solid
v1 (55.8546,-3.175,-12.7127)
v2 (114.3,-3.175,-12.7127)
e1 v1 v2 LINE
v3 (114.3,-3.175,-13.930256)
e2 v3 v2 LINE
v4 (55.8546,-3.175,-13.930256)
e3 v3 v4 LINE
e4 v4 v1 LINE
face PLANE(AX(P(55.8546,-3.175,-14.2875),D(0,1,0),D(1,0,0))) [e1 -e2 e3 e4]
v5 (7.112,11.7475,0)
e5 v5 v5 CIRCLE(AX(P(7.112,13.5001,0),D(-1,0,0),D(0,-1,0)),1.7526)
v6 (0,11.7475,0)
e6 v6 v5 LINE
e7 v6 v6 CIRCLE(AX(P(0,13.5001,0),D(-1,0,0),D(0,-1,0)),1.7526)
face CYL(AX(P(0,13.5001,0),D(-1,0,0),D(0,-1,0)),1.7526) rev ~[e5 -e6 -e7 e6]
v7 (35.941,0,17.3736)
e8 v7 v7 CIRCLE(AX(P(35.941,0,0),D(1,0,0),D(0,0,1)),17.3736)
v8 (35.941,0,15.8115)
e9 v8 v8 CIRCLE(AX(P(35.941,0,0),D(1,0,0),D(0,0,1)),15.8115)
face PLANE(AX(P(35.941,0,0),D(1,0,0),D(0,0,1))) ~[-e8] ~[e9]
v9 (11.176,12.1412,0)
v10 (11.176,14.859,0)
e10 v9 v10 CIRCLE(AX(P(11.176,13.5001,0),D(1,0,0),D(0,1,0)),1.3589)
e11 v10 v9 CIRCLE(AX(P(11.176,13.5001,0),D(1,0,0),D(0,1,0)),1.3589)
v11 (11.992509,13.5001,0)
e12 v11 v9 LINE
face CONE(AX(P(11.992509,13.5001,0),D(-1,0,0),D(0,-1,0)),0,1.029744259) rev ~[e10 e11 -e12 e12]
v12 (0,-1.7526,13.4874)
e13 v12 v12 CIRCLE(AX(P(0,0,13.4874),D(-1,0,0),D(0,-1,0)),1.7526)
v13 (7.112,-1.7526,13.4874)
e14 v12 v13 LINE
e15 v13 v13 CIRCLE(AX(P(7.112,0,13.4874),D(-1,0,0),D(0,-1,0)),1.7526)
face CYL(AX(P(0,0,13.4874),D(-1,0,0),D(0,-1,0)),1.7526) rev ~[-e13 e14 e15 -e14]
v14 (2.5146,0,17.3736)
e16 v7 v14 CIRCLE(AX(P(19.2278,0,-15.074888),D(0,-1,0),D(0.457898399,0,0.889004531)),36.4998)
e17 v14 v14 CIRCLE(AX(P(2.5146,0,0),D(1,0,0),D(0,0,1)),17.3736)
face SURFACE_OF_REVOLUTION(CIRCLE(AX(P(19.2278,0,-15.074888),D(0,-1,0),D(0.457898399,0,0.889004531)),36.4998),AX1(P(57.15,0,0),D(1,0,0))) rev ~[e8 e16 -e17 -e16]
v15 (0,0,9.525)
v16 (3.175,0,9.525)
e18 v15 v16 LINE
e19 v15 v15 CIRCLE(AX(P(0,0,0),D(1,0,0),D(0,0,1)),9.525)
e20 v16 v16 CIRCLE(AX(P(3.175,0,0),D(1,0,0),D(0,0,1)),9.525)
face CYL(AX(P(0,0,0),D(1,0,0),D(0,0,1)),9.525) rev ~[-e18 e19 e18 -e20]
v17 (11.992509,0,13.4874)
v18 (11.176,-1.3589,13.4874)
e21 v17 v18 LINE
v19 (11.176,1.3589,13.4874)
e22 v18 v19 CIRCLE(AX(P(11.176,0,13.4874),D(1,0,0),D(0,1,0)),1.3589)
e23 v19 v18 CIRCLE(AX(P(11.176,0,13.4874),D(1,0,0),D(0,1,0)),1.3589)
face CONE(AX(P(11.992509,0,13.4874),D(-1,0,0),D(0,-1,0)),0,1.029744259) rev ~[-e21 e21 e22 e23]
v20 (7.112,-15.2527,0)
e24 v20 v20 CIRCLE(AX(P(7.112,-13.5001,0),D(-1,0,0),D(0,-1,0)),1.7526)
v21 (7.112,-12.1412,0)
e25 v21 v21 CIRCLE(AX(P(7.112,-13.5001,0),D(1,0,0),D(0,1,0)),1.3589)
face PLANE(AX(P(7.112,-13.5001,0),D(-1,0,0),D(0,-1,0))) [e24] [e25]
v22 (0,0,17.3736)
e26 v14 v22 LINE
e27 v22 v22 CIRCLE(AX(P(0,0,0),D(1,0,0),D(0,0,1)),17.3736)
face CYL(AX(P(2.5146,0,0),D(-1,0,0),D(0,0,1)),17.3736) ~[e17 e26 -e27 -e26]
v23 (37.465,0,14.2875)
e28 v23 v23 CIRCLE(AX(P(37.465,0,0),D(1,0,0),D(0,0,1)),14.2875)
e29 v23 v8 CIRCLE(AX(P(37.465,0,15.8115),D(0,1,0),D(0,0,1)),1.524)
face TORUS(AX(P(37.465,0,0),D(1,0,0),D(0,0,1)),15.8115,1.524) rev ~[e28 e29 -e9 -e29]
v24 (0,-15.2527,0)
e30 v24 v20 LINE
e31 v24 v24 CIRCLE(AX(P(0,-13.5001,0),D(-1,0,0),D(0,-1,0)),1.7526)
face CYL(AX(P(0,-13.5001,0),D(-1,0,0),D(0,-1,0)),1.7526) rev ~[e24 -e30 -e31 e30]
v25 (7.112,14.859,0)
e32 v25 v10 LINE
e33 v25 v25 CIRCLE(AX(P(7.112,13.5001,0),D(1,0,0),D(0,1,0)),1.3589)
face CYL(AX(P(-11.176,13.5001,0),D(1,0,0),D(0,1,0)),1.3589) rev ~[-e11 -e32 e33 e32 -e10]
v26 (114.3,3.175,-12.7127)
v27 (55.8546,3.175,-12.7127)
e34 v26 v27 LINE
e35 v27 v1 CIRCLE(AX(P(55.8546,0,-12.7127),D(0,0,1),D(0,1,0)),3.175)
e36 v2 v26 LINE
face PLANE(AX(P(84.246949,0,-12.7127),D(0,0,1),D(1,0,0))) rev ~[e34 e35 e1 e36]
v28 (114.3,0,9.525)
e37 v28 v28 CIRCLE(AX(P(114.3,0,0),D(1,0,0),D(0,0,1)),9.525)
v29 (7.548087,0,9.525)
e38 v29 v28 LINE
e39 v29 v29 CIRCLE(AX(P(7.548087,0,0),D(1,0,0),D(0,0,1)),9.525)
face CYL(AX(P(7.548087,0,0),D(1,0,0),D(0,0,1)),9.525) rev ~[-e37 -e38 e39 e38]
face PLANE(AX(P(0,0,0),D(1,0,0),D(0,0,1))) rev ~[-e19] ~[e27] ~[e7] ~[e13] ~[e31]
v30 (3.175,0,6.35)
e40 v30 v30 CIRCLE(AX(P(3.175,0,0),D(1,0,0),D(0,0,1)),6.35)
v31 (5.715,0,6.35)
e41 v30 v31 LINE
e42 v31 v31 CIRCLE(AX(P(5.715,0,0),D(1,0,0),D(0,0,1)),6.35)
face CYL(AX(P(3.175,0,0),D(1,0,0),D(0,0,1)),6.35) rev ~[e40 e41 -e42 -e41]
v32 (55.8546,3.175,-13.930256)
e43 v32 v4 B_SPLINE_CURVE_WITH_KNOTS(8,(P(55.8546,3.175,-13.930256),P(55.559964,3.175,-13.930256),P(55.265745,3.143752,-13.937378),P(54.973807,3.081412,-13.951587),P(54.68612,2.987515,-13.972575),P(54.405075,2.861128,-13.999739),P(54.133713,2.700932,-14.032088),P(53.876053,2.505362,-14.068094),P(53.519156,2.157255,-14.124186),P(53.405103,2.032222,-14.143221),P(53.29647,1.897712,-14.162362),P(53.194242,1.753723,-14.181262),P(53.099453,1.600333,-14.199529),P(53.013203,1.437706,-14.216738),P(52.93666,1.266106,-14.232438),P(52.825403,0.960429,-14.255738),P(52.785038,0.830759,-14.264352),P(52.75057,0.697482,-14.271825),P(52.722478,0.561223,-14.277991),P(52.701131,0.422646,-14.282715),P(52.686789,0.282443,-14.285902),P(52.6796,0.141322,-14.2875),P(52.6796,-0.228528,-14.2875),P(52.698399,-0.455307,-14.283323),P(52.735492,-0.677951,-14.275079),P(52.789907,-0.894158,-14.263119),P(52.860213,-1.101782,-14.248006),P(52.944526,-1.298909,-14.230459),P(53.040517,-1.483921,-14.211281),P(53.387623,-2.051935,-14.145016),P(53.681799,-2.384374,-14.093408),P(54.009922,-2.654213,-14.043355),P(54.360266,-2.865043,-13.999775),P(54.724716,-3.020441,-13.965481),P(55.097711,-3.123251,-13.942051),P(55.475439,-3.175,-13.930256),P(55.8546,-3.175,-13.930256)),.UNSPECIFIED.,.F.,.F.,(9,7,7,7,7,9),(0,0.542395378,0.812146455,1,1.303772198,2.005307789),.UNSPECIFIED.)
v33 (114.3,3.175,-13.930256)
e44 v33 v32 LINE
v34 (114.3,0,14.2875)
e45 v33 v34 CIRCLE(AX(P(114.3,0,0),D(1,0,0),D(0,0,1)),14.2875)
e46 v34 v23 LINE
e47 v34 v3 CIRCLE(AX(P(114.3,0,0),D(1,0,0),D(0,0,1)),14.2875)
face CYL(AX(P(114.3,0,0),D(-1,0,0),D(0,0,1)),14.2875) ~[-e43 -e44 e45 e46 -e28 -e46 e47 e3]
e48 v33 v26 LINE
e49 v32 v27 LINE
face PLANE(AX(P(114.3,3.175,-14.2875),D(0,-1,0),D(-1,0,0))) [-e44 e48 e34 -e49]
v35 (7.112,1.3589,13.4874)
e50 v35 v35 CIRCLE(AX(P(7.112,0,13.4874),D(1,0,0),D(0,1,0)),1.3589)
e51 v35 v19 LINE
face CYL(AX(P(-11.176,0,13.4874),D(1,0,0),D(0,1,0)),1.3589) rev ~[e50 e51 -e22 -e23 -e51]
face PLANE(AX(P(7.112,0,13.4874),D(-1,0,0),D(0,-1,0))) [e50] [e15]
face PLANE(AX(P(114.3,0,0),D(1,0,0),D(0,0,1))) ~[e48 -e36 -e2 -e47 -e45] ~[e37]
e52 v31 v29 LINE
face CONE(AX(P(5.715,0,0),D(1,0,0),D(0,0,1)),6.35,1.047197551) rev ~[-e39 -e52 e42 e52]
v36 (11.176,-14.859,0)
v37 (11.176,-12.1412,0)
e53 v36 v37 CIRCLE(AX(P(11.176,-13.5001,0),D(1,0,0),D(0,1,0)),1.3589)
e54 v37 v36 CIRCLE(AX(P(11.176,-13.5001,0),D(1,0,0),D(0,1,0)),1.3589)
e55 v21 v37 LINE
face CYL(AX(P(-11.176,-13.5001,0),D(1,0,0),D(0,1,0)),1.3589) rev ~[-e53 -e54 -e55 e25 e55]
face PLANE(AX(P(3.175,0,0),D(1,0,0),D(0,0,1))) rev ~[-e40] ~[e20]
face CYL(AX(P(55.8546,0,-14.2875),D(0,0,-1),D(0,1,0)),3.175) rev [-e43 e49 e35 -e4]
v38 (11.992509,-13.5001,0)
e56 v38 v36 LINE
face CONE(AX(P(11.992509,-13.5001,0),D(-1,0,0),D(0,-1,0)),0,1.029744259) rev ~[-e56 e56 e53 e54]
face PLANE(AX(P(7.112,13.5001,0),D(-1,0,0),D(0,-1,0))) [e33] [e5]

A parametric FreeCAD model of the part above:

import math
import FreeCAD as App
import Part
import Sketcher
Q = App.Units.Quantity


def edges_at(feature, points):
    """Names of the edges that pass closest to the given points."""
    edges = feature.Shape.Edges
    near = lambda p: min(range(len(edges)), key=lambda i: edges[i].distToShape(Part.Vertex(*p))[0])
    return sorted({f"Edge{near(p) + 1}" for p in points})

doc = App.newDocument("Part")
params = doc.addObject("Spreadsheet::Sheet", "Params")
for row, (alias, value) in enumerate([
    ("sketch1_width", "0.1 in"),
    ("sketch1_radius", "1.437 in"),
    ("sketch1_width2", "0.099 in"),
    ("sketch1_width3", "0.125 in"),
    ("sketch1_width4", "3.085 in"),
    ("revolution_angle", "360 deg"),
    ("sketch2_diameter", "0.107 in"),
    ("hole_diameter", "0.107 in"),
    ("hole_depth", "0.44 in"),
    ("sketch3_diameter", "0.138 in"),
    ("pocket1_length", "0.28 in"),
    ("sketch4_radius", "0.125 in"),
    ("sketch4_width", "2.301 in"),
    ("pocket2_length", "0.062 in"),
    ("fillet_radius", "0.06 in"),
], start=1):
    params.set(f"A{row}", alias)
    params.set(f"B{row}", "=" + value)
    params.setAlias(f"B{row}", alias)

body = doc.addObject("PartDesign::Body", "Body")

# Sketch on XZ plane
sketch1 = body.newObject("Sketcher::SketchObject", "Sketch")
sketch1.AttachmentSupport = (doc.getObject("XZ_Plane"), [""])
sketch1.MapMode = "FlatFace"
sketch1.addGeometry([
    Part.ArcOfCircle(Part.Circle(App.Vector(19.2278, -15.074888, 0), App.Vector(0, 0, 1), 36.4998), math.radians(62.748422), math.radians(117.251578)),  # 0
    Part.LineSegment(App.Vector(2.5146, 17.3736, 0), App.Vector(0, 17.3736, 0)),  # 1
    Part.LineSegment(App.Vector(0, 17.3736, 0), App.Vector(0, 9.525, 0)),  # 2
    Part.LineSegment(App.Vector(0, 9.525, 0), App.Vector(3.175, 9.525, 0)),  # 3
    Part.LineSegment(App.Vector(3.175, 9.525, 0), App.Vector(3.175, 6.35, 0)),  # 4
    Part.LineSegment(App.Vector(3.175, 6.35, 0), App.Vector(5.715, 6.35, 0)),  # 5
    Part.LineSegment(App.Vector(5.715, 6.35, 0), App.Vector(7.548087, 9.525, 0)),  # 6
    Part.LineSegment(App.Vector(7.548087, 9.525, 0), App.Vector(114.3, 9.525, 0)),  # 7
    Part.LineSegment(App.Vector(114.3, 9.525, 0), App.Vector(114.3, 14.2875, 0)),  # 8
    Part.LineSegment(App.Vector(114.3, 14.2875, 0), App.Vector(35.941, 14.2875, 0)),  # 9
    Part.LineSegment(App.Vector(35.941, 14.2875, 0), App.Vector(35.941, 17.3736, 0)),  # 10
], False)
sketch1.addConstraint([
    Sketcher.Constraint("Coincident", 0, 2, 1, 1),
    Sketcher.Constraint("Coincident", 1, 2, 2, 1),
    Sketcher.Constraint("Coincident", 2, 2, 3, 1),
    Sketcher.Constraint("Coincident", 3, 2, 4, 1),
    Sketcher.Constraint("Coincident", 4, 2, 5, 1),
    Sketcher.Constraint("Coincident", 5, 2, 6, 1),
    Sketcher.Constraint("Coincident", 6, 2, 7, 1),
    Sketcher.Constraint("Coincident", 7, 2, 8, 1),
    Sketcher.Constraint("Coincident", 8, 2, 9, 1),
    Sketcher.Constraint("Coincident", 9, 2, 10, 1),
    Sketcher.Constraint("Coincident", 10, 2, 0, 1),
    Sketcher.Constraint("Horizontal", 1),
    Sketcher.Constraint("Vertical", 2),
    Sketcher.Constraint("Horizontal", 3),
    Sketcher.Constraint("Vertical", 4),
    Sketcher.Constraint("Horizontal", 5),
    Sketcher.Constraint("Horizontal", 7),
    Sketcher.Constraint("Vertical", 8),
    Sketcher.Constraint("Horizontal", 9),
    Sketcher.Constraint("Vertical", 10),
    Sketcher.Constraint("PointOnObject", 1, 2, -2),
    Sketcher.Constraint("Horizontal", 3, 2, 6, 2),
    Sketcher.Constraint("Horizontal", 1, 2, 10, 2),
    Sketcher.Constraint("Equal", 3, 4),
    Sketcher.Constraint("DistanceX", 5, 1, 5, 2, Q("0.1 in")),
    Sketcher.Constraint("Angle", 6, Q("60 deg")),
    Sketcher.Constraint("Radius", 0, Q("1.437 in")),
    Sketcher.Constraint("DistanceX", -1, 1, 7, 2, Q("4.5 in")),
    Sketcher.Constraint("DistanceX", 1, 2, 1, 1, Q("0.099 in")),
    Sketcher.Constraint("DistanceX", 3, 1, 3, 2, Q("0.125 in")),
    Sketcher.Constraint("DistanceX", 9, 2, 9, 1, Q("3.085 in")),
    Sketcher.Constraint("DistanceY", 2, 2, 2, 1, Q("0.309 in")),
    Sketcher.Constraint("DistanceY", 8, 1, 8, 2, Q("0.1875 in")),
    Sketcher.Constraint("DistanceY", -1, 1, 4, 2, Q("0.25 in")),
])
sketch1.setExpression("Constraints[24]", "Params.sketch1_width")
sketch1.setExpression("Constraints[26]", "Params.sketch1_radius")
sketch1.setExpression("Constraints[28]", "Params.sketch1_width2")
sketch1.setExpression("Constraints[29]", "Params.sketch1_width3")
sketch1.setExpression("Constraints[30]", "Params.sketch1_width4")
revolution = body.newObject("PartDesign::Revolution", "Revolution")
revolution.Profile = sketch1
revolution.ReferenceAxis = (sketch1, ["H_Axis"])
revolution.setExpression("Angle", "Params.revolution_angle")

# Sketch on YZ plane
sketch2 = body.newObject("Sketcher::SketchObject", "Sketch001")
sketch2.AttachmentSupport = (doc.getObject("YZ_Plane"), [""])
sketch2.MapMode = "FlatFace"
sketch2.addGeometry([
    Part.Circle(App.Vector(13.5001, 0, 0), App.Vector(0, 0, 1), 1.3589),
    Part.Circle(App.Vector(0, 13.4874, 0), App.Vector(0, 0, 1), 1.3589),
    Part.Circle(App.Vector(-13.5001, 0, 0), App.Vector(0, 0, 1), 1.3589),
], False)
sketch2.addConstraint([
    Sketcher.Constraint("Equal", 0, 1),
    Sketcher.Constraint("Equal", 1, 2),
    Sketcher.Constraint("Symmetric", 0, 3, 2, 3, -1, 1),
    Sketcher.Constraint("PointOnObject", 0, 3, -1),
    Sketcher.Constraint("PointOnObject", 1, 3, -2),
    Sketcher.Constraint("Diameter", 0, Q("0.107 in")),
    Sketcher.Constraint("DistanceY", -1, 1, 1, 3, Q("0.531 in")),
    Sketcher.Constraint("DistanceX", 2, 3, 0, 3, Q("1.063 in")),
])
sketch2.setExpression("Constraints[5]", "Params.sketch2_diameter")
doc.recompute()
hole = body.newObject("PartDesign::Hole", "Hole")
hole.Profile = sketch2
hole.ThreadType = "None"
hole.setExpression("Diameter", "Params.hole_diameter")
hole.DepthType = "Dimension"
hole.setExpression("Depth", "Params.hole_depth")
hole.DrillPoint = "Angled"
hole.DrillPointAngle = 118
hole.Reversed = True

# Sketch on YZ plane
sketch3 = body.newObject("Sketcher::SketchObject", "Sketch002")
sketch3.AttachmentSupport = (doc.getObject("YZ_Plane"), [""])
sketch3.MapMode = "FlatFace"
sketch3.addGeometry([
    Part.Circle(App.Vector(13.5001, 0, 0), App.Vector(0, 0, 1), 1.7526),
    Part.Circle(App.Vector(0, 13.4874, 0), App.Vector(0, 0, 1), 1.7526),
    Part.Circle(App.Vector(-13.5001, 0, 0), App.Vector(0, 0, 1), 1.7526),
], False)
sketch3.addConstraint([
    Sketcher.Constraint("Equal", 0, 1),
    Sketcher.Constraint("Equal", 1, 2),
    Sketcher.Constraint("Symmetric", 0, 3, 2, 3, -1, 1),
    Sketcher.Constraint("PointOnObject", 0, 3, -1),
    Sketcher.Constraint("PointOnObject", 1, 3, -2),
    Sketcher.Constraint("Diameter", 0, Q("0.138 in")),
    Sketcher.Constraint("DistanceY", -1, 1, 1, 3, Q("0.531 in")),
    Sketcher.Constraint("DistanceX", 2, 3, 0, 3, Q("1.063 in")),
])
sketch3.setExpression("Constraints[5]", "Params.sketch3_diameter")
pocket1 = body.newObject("PartDesign::Pocket", "Pocket")
pocket1.Profile = sketch3
pocket1.setExpression("Length", "Params.pocket1_length")
pocket1.Reversed = True

# Sketch on XY plane
sketch4 = body.newObject("Sketcher::SketchObject", "Sketch003")
sketch4.AttachmentSupport = (doc.getObject("XY_Plane"), [""])
sketch4.MapMode = "FlatFace"
sketch4.AttachmentOffset = App.Placement(App.Vector(0, 0, -0.5625 * 25.4), App.Rotation())
sketch4.addGeometry([
    Part.LineSegment(App.Vector(55.8546, -3.175, 0), App.Vector(114.3, -3.175, 0)),
    Part.LineSegment(App.Vector(114.3, -3.175, 0), App.Vector(114.3, 3.175, 0)),
    Part.LineSegment(App.Vector(114.3, 3.175, 0), App.Vector(55.8546, 3.175, 0)),
    Part.ArcOfCircle(Part.Circle(App.Vector(55.8546, 0, 0), App.Vector(0, 0, 1), 3.175), math.radians(90), math.radians(270)),
], False)
sketch4.addConstraint([
    Sketcher.Constraint("Coincident", 0, 2, 1, 1),
    Sketcher.Constraint("Coincident", 1, 2, 2, 1),
    Sketcher.Constraint("Tangent", 2, 2, 3, 1),
    Sketcher.Constraint("Tangent", 3, 2, 0, 1),
    Sketcher.Constraint("Horizontal", 0),
    Sketcher.Constraint("Vertical", 1),
    Sketcher.Constraint("Horizontal", 2),
    Sketcher.Constraint("PointOnObject", 3, 3, -1),
    Sketcher.Constraint("Radius", 3, Q("0.125 in")),
    Sketcher.Constraint("DistanceX", -1, 1, 0, 2, Q("4.5 in")),
    Sketcher.Constraint("DistanceX", 0, 1, 0, 2, Q("2.301 in")),
])
sketch4.setExpression("Constraints[8]", "Params.sketch4_radius")
sketch4.setExpression("Constraints[10]", "Params.sketch4_width")
pocket2 = body.newObject("PartDesign::Pocket", "Pocket001")
pocket2.Profile = sketch4
pocket2.setExpression("Length", "Params.pocket2_length")
pocket2.Reversed = True
doc.recompute()

fillet = body.newObject("PartDesign::Fillet", "Fillet")
fillet.Base = (pocket2, edges_at(pocket2, [(35.941, 0, -14.287)]))
fillet.setExpression("Radius", "Params.fillet_radius")

doc.recompute()
